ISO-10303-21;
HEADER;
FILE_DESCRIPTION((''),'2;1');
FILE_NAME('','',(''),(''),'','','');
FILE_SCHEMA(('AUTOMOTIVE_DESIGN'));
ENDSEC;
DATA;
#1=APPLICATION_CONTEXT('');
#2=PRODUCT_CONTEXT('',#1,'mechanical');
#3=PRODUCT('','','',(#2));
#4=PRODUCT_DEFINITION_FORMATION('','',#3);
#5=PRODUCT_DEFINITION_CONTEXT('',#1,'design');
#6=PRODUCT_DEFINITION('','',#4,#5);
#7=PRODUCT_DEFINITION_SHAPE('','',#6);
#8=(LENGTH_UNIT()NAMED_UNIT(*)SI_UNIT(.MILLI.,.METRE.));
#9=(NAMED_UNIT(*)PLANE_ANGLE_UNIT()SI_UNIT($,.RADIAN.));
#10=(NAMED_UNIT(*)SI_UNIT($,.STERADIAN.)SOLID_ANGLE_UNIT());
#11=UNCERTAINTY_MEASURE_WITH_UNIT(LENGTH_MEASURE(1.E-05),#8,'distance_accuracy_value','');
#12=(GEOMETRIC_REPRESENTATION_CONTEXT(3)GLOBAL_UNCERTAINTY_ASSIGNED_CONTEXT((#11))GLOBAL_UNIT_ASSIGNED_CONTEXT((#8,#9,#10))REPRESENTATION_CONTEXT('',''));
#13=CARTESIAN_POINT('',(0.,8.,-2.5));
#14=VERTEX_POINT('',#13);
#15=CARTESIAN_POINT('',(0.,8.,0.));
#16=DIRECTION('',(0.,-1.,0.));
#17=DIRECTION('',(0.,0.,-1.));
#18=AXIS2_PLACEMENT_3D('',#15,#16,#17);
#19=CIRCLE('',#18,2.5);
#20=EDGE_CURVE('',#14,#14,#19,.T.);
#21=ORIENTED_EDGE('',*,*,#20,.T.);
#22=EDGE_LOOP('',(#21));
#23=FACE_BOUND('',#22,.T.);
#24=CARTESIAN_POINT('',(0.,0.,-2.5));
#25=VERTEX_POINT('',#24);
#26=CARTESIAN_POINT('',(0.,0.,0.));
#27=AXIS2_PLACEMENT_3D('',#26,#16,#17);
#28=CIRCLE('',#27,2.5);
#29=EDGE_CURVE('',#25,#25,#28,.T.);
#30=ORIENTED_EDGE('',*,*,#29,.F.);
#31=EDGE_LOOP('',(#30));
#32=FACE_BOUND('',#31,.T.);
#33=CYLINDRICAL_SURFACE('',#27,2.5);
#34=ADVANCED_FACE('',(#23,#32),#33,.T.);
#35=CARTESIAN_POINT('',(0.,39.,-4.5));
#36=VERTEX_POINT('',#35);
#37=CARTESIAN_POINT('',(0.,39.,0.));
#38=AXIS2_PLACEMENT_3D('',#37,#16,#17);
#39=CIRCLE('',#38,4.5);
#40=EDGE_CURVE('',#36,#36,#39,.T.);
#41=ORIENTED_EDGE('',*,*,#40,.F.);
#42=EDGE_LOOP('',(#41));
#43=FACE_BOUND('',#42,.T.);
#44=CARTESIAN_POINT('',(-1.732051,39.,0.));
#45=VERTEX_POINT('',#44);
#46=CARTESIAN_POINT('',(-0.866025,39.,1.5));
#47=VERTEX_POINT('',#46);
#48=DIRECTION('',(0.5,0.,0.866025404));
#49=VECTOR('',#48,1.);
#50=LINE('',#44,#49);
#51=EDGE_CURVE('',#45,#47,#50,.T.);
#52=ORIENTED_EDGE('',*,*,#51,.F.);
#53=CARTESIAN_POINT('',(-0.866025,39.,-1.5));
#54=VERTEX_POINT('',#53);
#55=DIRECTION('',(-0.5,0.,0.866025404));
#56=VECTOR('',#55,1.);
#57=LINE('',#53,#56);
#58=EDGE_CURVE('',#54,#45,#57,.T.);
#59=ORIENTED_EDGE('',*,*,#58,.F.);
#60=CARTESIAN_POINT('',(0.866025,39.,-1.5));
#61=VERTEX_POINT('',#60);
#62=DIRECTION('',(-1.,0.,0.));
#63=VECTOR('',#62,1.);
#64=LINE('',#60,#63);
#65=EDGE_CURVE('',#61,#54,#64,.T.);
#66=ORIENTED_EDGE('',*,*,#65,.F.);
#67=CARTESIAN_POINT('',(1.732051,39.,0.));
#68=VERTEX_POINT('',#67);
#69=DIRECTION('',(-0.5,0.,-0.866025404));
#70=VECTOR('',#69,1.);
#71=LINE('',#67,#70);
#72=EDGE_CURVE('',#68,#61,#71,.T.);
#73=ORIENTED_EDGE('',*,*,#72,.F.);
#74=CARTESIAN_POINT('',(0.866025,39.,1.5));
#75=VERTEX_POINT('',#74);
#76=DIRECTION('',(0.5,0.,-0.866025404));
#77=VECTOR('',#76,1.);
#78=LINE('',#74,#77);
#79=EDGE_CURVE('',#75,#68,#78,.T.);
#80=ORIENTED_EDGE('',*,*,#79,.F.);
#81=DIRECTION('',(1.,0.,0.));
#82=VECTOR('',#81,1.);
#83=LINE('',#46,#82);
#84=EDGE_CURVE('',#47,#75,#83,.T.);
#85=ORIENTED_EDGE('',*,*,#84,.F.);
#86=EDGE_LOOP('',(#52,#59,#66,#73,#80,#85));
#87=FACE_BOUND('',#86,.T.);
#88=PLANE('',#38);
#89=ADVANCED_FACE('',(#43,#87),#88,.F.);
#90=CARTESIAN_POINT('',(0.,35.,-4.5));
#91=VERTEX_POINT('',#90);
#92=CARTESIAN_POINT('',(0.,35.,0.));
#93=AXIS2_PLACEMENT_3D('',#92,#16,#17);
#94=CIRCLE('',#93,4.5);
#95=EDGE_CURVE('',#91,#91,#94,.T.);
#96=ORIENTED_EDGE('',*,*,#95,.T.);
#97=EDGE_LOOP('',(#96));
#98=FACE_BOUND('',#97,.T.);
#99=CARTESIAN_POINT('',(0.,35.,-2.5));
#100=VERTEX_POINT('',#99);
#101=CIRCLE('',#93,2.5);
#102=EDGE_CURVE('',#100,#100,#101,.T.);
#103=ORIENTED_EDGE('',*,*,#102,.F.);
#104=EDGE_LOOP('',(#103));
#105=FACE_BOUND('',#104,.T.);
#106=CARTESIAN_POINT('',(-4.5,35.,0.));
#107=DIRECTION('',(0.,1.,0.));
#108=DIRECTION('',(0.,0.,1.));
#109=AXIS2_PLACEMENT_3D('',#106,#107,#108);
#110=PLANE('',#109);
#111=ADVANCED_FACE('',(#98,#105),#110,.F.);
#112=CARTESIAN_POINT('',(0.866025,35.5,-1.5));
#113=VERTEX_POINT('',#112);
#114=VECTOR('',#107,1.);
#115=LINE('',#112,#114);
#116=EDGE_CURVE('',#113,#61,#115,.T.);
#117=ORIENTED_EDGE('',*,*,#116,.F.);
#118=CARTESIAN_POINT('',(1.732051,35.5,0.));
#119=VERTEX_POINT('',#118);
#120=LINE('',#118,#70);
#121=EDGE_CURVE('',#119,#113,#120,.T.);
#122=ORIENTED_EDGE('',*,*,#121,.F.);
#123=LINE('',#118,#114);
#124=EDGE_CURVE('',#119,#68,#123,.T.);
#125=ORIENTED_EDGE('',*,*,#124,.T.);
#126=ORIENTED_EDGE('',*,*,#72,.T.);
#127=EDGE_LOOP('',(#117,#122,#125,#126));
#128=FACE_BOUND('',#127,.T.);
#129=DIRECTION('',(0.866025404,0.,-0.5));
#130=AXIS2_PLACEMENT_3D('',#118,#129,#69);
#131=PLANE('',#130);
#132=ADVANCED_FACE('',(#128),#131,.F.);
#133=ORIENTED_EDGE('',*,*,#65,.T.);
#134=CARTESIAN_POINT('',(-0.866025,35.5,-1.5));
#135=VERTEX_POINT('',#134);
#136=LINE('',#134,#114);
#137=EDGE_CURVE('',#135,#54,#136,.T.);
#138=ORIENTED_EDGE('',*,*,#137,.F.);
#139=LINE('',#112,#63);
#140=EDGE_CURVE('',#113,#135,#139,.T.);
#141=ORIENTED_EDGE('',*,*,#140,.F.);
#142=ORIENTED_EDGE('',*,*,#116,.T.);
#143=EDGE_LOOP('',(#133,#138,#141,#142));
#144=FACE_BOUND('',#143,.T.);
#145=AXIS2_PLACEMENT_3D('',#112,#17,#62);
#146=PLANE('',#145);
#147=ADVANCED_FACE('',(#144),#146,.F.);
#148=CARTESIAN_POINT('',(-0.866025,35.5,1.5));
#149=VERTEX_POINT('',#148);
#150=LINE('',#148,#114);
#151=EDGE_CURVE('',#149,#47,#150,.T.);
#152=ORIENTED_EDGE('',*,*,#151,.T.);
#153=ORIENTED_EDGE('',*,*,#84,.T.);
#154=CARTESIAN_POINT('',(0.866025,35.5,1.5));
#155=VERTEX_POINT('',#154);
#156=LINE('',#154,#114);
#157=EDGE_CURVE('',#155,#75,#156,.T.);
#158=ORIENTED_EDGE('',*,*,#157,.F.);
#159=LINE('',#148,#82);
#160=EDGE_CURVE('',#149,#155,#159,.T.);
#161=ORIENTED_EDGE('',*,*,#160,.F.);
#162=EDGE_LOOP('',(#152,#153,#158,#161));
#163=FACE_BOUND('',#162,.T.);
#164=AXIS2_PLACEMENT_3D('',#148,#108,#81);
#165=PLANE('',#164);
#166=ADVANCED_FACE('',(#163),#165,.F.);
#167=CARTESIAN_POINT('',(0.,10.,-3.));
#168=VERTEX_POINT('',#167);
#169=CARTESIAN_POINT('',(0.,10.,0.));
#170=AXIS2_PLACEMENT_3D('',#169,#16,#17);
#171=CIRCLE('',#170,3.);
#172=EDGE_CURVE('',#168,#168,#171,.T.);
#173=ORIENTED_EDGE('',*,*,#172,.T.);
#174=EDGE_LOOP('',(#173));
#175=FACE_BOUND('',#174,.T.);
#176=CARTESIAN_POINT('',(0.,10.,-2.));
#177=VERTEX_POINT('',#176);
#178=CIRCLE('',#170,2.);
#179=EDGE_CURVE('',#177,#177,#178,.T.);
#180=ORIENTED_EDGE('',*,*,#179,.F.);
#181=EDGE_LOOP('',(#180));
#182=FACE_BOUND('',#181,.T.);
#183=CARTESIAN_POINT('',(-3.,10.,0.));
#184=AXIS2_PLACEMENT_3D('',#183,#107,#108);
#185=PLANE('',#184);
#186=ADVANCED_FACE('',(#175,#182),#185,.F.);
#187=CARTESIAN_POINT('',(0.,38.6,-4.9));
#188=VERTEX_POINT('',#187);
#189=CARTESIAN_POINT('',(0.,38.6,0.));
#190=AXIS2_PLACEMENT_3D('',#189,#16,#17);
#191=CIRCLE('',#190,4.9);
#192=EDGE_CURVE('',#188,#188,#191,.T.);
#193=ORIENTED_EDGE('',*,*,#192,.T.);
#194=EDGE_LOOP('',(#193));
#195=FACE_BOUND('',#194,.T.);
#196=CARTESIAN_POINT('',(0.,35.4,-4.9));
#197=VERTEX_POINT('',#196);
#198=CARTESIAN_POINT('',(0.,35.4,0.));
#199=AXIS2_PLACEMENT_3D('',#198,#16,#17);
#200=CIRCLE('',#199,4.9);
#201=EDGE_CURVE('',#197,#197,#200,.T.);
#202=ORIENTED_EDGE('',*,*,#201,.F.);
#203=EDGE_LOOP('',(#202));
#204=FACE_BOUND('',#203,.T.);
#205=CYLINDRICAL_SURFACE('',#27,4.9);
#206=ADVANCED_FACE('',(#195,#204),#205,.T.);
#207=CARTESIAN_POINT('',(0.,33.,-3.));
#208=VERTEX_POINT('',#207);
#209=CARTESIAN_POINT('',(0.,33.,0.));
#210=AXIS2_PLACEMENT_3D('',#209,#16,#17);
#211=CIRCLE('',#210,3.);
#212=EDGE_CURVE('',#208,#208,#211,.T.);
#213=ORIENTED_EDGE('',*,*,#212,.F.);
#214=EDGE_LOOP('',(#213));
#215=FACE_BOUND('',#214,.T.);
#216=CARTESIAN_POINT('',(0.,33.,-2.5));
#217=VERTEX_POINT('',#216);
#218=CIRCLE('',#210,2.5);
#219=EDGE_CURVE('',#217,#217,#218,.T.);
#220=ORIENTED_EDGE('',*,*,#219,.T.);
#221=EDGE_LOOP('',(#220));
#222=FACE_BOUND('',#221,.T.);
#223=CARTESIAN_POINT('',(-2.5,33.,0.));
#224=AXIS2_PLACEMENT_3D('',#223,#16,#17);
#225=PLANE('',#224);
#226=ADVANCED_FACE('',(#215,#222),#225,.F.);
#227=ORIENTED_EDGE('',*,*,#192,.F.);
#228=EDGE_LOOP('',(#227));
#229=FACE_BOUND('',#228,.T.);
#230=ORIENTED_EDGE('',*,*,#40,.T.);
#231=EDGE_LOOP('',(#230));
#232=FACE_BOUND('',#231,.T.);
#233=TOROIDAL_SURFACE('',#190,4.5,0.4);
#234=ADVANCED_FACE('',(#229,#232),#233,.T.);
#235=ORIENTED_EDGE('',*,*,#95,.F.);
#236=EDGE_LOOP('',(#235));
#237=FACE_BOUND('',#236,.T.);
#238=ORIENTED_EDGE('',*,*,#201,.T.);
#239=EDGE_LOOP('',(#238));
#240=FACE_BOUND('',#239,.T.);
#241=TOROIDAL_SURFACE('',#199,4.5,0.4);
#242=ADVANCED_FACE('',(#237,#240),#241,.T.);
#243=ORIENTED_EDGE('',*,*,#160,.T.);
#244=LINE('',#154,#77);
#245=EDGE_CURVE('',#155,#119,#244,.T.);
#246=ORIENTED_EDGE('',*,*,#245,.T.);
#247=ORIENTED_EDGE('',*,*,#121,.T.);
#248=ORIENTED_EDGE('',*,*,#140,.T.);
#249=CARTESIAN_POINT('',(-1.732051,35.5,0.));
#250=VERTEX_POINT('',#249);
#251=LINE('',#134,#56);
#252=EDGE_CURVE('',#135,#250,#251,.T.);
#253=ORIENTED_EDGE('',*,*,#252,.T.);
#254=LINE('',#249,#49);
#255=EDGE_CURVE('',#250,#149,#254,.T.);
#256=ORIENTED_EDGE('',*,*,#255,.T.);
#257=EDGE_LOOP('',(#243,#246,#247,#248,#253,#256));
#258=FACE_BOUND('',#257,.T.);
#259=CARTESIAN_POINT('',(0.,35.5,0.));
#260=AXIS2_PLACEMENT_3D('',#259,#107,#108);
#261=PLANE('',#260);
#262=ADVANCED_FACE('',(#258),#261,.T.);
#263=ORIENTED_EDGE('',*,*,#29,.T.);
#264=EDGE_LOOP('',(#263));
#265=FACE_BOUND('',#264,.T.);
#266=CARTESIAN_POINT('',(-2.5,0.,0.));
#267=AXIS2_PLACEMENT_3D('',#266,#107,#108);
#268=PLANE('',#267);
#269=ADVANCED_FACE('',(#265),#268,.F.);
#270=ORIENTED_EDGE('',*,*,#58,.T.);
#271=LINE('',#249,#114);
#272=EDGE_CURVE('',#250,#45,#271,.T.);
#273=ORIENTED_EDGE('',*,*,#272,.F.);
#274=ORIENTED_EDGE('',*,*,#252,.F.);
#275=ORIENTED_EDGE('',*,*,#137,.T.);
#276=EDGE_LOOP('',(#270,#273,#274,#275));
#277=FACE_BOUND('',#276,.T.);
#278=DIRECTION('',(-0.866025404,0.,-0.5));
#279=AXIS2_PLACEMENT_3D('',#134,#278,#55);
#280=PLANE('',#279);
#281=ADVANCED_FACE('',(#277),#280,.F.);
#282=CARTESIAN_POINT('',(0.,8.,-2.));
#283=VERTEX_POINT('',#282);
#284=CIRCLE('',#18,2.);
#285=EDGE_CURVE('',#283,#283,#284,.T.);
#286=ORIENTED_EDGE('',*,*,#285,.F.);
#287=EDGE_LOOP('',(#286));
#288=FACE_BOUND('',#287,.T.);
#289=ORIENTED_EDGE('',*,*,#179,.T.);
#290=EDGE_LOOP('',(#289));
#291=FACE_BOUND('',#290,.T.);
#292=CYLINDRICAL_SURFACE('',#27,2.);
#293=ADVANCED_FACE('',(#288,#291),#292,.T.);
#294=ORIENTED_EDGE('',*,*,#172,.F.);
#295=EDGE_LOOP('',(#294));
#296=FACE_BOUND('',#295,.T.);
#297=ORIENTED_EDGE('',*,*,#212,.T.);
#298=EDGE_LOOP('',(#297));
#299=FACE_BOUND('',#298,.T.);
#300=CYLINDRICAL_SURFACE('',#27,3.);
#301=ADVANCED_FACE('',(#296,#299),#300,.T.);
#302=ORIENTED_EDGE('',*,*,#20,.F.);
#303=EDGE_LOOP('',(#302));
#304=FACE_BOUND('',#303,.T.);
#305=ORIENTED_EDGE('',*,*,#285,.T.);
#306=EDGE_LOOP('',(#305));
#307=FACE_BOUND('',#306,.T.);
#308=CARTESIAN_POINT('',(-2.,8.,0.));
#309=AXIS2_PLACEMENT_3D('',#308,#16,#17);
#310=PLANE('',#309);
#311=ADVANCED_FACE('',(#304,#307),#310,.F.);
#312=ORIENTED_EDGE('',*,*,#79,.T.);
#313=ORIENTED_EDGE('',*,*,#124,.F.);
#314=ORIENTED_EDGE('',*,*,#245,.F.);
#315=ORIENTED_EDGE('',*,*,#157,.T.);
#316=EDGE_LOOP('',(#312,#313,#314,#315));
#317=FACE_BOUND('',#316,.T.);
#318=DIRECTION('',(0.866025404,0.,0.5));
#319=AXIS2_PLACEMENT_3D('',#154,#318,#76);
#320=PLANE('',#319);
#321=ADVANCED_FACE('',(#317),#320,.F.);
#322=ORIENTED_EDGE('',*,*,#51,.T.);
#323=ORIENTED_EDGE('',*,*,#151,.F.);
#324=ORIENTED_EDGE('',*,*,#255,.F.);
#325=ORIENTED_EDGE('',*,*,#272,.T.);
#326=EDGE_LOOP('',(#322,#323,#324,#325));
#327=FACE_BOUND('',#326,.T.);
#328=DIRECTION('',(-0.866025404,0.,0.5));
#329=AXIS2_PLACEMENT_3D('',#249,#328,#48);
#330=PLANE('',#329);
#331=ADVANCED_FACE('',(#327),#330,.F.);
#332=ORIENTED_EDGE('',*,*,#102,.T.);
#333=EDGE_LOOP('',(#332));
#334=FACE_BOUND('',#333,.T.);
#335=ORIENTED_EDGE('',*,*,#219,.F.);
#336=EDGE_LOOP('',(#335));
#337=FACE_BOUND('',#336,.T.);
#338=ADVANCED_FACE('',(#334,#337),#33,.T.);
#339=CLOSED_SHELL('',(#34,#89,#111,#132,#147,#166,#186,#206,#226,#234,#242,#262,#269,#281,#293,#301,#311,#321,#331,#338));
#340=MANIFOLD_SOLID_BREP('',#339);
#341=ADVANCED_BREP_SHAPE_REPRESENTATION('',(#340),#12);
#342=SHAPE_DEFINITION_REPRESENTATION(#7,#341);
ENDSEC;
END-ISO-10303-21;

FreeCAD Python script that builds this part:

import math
import FreeCAD as App
import Part
import Sketcher
Q = App.Units.Quantity


def add_polygon(sketch, points):
    """Adds a closed chain of lines whose ends are joined by coincident constraints."""
    first, n = sketch.GeometryCount, len(points)
    for a, b in zip(points, points[1:] + points[:1]):
        sketch.addGeometry(Part.LineSegment(App.Vector(*a, 0), App.Vector(*b, 0)), False)
    for i in range(n):
        sketch.addConstraint(Sketcher.Constraint("Coincident", first + i, 2, first + (i + 1) % n, 1))

doc = App.newDocument("Part")
params = doc.addObject("Spreadsheet::Sheet", "Params")
for row, (alias, value) in enumerate([
    ("sketch1_radius", "0.4 mm"),
    ("sketch1_width", "2 mm"),
    ("sketch1_width2", "1 mm"),
    ("sketch1_height", "23 mm"),
    ("sketch1_height2", "8 mm"),
    ("revolution_angle", "360 deg"),
    ("pocket1_length", "3.5 mm"),
], start=1):
    params.set(f"A{row}", alias)
    params.set(f"B{row}", "=" + value)
    params.setAlias(f"B{row}", alias)

body = doc.addObject("PartDesign::Body", "Body")

sketch1 = body.newObject("Sketcher::SketchObject", "Sketch")
sketch1.AttachmentSupport = (doc.getObject("XY_Plane"), [""])
sketch1.MapMode = "FlatFace"
sketch1.addGeometry(Part.LineSegment(App.Vector(0, 39, 0), App.Vector(-4.5, 39, 0)), False)
sketch1.addGeometry(Part.ArcOfCircle(Part.Circle(App.Vector(-4.5, 38.6, 0), App.Vector(0, 0, 1), 0.4), math.radians(90), math.radians(180)), False)
sketch1.addGeometry(Part.LineSegment(App.Vector(-4.9, 38.6, 0), App.Vector(-4.9, 35.4, 0)), False)
sketch1.addGeometry(Part.ArcOfCircle(Part.Circle(App.Vector(-4.5, 35.4, 0), App.Vector(0, 0, 1), 0.4), math.radians(-180), math.radians(-90)), False)
sketch1.addGeometry(Part.LineSegment(App.Vector(-4.5, 35, 0), App.Vector(-2.5, 35, 0)), False)
sketch1.addGeometry(Part.LineSegment(App.Vector(-2.5, 35, 0), App.Vector(-2.5, 33, 0)), False)
sketch1.addGeometry(Part.LineSegment(App.Vector(-2.5, 33, 0), App.Vector(-3, 33, 0)), False)
sketch1.addGeometry(Part.LineSegment(App.Vector(-3, 33, 0), App.Vector(-3, 10, 0)), False)
sketch1.addGeometry(Part.LineSegment(App.Vector(-3, 10, 0), App.Vector(-2, 10, 0)), False)
sketch1.addGeometry(Part.LineSegment(App.Vector(-2, 10, 0), App.Vector(-2, 8, 0)), False)
sketch1.addGeometry(Part.LineSegment(App.Vector(-2, 8, 0), App.Vector(-2.5, 8, 0)), False)
sketch1.addGeometry(Part.LineSegment(App.Vector(-2.5, 8, 0), App.Vector(-2.5, 0, 0)), False)
sketch1.addGeometry(Part.LineSegment(App.Vector(-2.5, 0, 0), App.Vector(0, 0, 0)), False)
sketch1.addGeometry(Part.LineSegment(App.Vector(0, 0, 0), App.Vector(0, 39, 0)), False)
sketch1.addConstraint(Sketcher.Constraint("Tangent", 0, 2, 1, 1))
sketch1.addConstraint(Sketcher.Constraint("Tangent", 1, 2, 2, 1))
sketch1.addConstraint(Sketcher.Constraint("Tangent", 2, 2, 3, 1))
sketch1.addConstraint(Sketcher.Constraint("Tangent", 3, 2, 4, 1))
sketch1.addConstraint(Sketcher.Constraint("Coincident", 4, 2, 5, 1))
sketch1.addConstraint(Sketcher.Constraint("Coincident", 5, 2, 6, 1))
sketch1.addConstraint(Sketcher.Constraint("Coincident", 6, 2, 7, 1))
sketch1.addConstraint(Sketcher.Constraint("Coincident", 7, 2, 8, 1))
sketch1.addConstraint(Sketcher.Constraint("Coincident", 8, 2, 9, 1))
sketch1.addConstraint(Sketcher.Constraint("Coincident", 9, 2, 10, 1))
sketch1.addConstraint(Sketcher.Constraint("Coincident", 10, 2, 11, 1))
sketch1.addConstraint(Sketcher.Constraint("Coincident", 11, 2, 12, 1))
sketch1.addConstraint(Sketcher.Constraint("Coincident", 12, 2, 13, 1))
sketch1.addConstraint(Sketcher.Constraint("Coincident", 13, 2, 0, 1))
sketch1.addConstraint(Sketcher.Constraint("Horizontal", 0))
sketch1.addConstraint(Sketcher.Constraint("Vertical", 2))
sketch1.addConstraint(Sketcher.Constraint("Horizontal", 4))
sketch1.addConstraint(Sketcher.Constraint("Vertical", 5))
sketch1.addConstraint(Sketcher.Constraint("Horizontal", 6))
sketch1.addConstraint(Sketcher.Constraint("Vertical", 7))
sketch1.addConstraint(Sketcher.Constraint("Horizontal", 8))
sketch1.addConstraint(Sketcher.Constraint("Vertical", 9))
sketch1.addConstraint(Sketcher.Constraint("Horizontal", 10))
sketch1.addConstraint(Sketcher.Constraint("Vertical", 11))
sketch1.addConstraint(Sketcher.Constraint("Horizontal", 12))
sketch1.addConstraint(Sketcher.Constraint("Vertical", 13))
sketch1.addConstraint(Sketcher.Constraint("Coincident", 12, 2, -1, 1))
sketch1.addConstraint(Sketcher.Constraint("Equal", 1, 3))
sketch1.addConstraint(Sketcher.Constraint("Vertical", 5, 2, 10, 2))
sketch1.addConstraint(Sketcher.Constraint("Equal", 6, 10))
sketch1.addConstraint(Sketcher.Constraint("Equal", 4, 5))
sketch1.addConstraint(Sketcher.Constraint("Equal", 5, 9))
sketch1.addConstraint(Sketcher.Constraint("Radius", 1, 0.4))
sketch1.addConstraint(Sketcher.Constraint("DistanceX", 4, 1, 4, 2, 2.0))
sketch1.addConstraint(Sketcher.Constraint("DistanceX", 8, 1, 8, 2, 1.0))
sketch1.addConstraint(Sketcher.Constraint("DistanceY", 7, 2, 7, 1, 23.0))
sketch1.addConstraint(Sketcher.Constraint("DistanceY", 11, 2, 11, 1, 8.0))
sketch1.addConstraint(Sketcher.Constraint("DistanceY", 13, 1, 13, 2, 39.0))
sketch1.addConstraint(Sketcher.Constraint("DistanceX", 0, 2, 0, 1, 4.5))
sketch1.setExpression("Constraints[32]", "Params.sketch1_radius")
sketch1.setExpression("Constraints[33]", "Params.sketch1_width")
sketch1.setExpression("Constraints[34]", "Params.sketch1_width2")
sketch1.setExpression("Constraints[35]", "Params.sketch1_height")
sketch1.setExpression("Constraints[36]", "Params.sketch1_height2")
revolution = body.newObject("PartDesign::Revolution", "Revolution")
revolution.Profile = sketch1
revolution.ReferenceAxis = (sketch1, ["V_Axis"])
revolution.setExpression("Angle", "Params.revolution_angle")

sketch2 = body.newObject("Sketcher::SketchObject", "Sketch001")
sketch2.AttachmentSupport = (doc.getObject("XZ_Plane"), [""])
sketch2.MapMode = "FlatFace"
sketch2.AttachmentOffset = App.Placement(App.Vector(0, 0, -39), App.Rotation())
add_polygon(sketch2, [(0.9, -1.5), (-0.9, -1.5), (-1.7, 0), (-0.9, 1.5), (0.9, 1.5), (1.7, 0)])
sketch2.addConstraint(Sketcher.Constraint("Horizontal", 0))
sketch2.addConstraint(Sketcher.Constraint("Horizontal", 3))
sketch2.addConstraint(Sketcher.Constraint("Symmetric", 0, 2, 3, 2, -1, 1))
sketch2.addConstraint(Sketcher.Constraint("Symmetric", 1, 2, 4, 2, -1, 1))
sketch2.addConstraint(Sketcher.Constraint("PointOnObject", 1, 2, -1))
sketch2.addConstraint(Sketcher.Constraint("Parallel", 2, 5))
sketch2.addConstraint(Sketcher.Constraint("Vertical", 0, 2, 2, 2))
sketch2.addConstraint(Sketcher.Constraint("Angle", 1, Q("120 deg")))
sketch2.addConstraint(Sketcher.Constraint("DistanceY", 0, 2, 2, 2, 3.0))
sketch2.addConstraint(Sketcher.Constraint("DistanceX", 0, 2, 0, 1, 1.732051))
pocket1 = body.newObject("PartDesign::Pocket", "Pocket")
pocket1.Profile = sketch2
pocket1.setExpression("Length", "Params.pocket1_length")
pocket1.Reversed = True

doc.recompute()
